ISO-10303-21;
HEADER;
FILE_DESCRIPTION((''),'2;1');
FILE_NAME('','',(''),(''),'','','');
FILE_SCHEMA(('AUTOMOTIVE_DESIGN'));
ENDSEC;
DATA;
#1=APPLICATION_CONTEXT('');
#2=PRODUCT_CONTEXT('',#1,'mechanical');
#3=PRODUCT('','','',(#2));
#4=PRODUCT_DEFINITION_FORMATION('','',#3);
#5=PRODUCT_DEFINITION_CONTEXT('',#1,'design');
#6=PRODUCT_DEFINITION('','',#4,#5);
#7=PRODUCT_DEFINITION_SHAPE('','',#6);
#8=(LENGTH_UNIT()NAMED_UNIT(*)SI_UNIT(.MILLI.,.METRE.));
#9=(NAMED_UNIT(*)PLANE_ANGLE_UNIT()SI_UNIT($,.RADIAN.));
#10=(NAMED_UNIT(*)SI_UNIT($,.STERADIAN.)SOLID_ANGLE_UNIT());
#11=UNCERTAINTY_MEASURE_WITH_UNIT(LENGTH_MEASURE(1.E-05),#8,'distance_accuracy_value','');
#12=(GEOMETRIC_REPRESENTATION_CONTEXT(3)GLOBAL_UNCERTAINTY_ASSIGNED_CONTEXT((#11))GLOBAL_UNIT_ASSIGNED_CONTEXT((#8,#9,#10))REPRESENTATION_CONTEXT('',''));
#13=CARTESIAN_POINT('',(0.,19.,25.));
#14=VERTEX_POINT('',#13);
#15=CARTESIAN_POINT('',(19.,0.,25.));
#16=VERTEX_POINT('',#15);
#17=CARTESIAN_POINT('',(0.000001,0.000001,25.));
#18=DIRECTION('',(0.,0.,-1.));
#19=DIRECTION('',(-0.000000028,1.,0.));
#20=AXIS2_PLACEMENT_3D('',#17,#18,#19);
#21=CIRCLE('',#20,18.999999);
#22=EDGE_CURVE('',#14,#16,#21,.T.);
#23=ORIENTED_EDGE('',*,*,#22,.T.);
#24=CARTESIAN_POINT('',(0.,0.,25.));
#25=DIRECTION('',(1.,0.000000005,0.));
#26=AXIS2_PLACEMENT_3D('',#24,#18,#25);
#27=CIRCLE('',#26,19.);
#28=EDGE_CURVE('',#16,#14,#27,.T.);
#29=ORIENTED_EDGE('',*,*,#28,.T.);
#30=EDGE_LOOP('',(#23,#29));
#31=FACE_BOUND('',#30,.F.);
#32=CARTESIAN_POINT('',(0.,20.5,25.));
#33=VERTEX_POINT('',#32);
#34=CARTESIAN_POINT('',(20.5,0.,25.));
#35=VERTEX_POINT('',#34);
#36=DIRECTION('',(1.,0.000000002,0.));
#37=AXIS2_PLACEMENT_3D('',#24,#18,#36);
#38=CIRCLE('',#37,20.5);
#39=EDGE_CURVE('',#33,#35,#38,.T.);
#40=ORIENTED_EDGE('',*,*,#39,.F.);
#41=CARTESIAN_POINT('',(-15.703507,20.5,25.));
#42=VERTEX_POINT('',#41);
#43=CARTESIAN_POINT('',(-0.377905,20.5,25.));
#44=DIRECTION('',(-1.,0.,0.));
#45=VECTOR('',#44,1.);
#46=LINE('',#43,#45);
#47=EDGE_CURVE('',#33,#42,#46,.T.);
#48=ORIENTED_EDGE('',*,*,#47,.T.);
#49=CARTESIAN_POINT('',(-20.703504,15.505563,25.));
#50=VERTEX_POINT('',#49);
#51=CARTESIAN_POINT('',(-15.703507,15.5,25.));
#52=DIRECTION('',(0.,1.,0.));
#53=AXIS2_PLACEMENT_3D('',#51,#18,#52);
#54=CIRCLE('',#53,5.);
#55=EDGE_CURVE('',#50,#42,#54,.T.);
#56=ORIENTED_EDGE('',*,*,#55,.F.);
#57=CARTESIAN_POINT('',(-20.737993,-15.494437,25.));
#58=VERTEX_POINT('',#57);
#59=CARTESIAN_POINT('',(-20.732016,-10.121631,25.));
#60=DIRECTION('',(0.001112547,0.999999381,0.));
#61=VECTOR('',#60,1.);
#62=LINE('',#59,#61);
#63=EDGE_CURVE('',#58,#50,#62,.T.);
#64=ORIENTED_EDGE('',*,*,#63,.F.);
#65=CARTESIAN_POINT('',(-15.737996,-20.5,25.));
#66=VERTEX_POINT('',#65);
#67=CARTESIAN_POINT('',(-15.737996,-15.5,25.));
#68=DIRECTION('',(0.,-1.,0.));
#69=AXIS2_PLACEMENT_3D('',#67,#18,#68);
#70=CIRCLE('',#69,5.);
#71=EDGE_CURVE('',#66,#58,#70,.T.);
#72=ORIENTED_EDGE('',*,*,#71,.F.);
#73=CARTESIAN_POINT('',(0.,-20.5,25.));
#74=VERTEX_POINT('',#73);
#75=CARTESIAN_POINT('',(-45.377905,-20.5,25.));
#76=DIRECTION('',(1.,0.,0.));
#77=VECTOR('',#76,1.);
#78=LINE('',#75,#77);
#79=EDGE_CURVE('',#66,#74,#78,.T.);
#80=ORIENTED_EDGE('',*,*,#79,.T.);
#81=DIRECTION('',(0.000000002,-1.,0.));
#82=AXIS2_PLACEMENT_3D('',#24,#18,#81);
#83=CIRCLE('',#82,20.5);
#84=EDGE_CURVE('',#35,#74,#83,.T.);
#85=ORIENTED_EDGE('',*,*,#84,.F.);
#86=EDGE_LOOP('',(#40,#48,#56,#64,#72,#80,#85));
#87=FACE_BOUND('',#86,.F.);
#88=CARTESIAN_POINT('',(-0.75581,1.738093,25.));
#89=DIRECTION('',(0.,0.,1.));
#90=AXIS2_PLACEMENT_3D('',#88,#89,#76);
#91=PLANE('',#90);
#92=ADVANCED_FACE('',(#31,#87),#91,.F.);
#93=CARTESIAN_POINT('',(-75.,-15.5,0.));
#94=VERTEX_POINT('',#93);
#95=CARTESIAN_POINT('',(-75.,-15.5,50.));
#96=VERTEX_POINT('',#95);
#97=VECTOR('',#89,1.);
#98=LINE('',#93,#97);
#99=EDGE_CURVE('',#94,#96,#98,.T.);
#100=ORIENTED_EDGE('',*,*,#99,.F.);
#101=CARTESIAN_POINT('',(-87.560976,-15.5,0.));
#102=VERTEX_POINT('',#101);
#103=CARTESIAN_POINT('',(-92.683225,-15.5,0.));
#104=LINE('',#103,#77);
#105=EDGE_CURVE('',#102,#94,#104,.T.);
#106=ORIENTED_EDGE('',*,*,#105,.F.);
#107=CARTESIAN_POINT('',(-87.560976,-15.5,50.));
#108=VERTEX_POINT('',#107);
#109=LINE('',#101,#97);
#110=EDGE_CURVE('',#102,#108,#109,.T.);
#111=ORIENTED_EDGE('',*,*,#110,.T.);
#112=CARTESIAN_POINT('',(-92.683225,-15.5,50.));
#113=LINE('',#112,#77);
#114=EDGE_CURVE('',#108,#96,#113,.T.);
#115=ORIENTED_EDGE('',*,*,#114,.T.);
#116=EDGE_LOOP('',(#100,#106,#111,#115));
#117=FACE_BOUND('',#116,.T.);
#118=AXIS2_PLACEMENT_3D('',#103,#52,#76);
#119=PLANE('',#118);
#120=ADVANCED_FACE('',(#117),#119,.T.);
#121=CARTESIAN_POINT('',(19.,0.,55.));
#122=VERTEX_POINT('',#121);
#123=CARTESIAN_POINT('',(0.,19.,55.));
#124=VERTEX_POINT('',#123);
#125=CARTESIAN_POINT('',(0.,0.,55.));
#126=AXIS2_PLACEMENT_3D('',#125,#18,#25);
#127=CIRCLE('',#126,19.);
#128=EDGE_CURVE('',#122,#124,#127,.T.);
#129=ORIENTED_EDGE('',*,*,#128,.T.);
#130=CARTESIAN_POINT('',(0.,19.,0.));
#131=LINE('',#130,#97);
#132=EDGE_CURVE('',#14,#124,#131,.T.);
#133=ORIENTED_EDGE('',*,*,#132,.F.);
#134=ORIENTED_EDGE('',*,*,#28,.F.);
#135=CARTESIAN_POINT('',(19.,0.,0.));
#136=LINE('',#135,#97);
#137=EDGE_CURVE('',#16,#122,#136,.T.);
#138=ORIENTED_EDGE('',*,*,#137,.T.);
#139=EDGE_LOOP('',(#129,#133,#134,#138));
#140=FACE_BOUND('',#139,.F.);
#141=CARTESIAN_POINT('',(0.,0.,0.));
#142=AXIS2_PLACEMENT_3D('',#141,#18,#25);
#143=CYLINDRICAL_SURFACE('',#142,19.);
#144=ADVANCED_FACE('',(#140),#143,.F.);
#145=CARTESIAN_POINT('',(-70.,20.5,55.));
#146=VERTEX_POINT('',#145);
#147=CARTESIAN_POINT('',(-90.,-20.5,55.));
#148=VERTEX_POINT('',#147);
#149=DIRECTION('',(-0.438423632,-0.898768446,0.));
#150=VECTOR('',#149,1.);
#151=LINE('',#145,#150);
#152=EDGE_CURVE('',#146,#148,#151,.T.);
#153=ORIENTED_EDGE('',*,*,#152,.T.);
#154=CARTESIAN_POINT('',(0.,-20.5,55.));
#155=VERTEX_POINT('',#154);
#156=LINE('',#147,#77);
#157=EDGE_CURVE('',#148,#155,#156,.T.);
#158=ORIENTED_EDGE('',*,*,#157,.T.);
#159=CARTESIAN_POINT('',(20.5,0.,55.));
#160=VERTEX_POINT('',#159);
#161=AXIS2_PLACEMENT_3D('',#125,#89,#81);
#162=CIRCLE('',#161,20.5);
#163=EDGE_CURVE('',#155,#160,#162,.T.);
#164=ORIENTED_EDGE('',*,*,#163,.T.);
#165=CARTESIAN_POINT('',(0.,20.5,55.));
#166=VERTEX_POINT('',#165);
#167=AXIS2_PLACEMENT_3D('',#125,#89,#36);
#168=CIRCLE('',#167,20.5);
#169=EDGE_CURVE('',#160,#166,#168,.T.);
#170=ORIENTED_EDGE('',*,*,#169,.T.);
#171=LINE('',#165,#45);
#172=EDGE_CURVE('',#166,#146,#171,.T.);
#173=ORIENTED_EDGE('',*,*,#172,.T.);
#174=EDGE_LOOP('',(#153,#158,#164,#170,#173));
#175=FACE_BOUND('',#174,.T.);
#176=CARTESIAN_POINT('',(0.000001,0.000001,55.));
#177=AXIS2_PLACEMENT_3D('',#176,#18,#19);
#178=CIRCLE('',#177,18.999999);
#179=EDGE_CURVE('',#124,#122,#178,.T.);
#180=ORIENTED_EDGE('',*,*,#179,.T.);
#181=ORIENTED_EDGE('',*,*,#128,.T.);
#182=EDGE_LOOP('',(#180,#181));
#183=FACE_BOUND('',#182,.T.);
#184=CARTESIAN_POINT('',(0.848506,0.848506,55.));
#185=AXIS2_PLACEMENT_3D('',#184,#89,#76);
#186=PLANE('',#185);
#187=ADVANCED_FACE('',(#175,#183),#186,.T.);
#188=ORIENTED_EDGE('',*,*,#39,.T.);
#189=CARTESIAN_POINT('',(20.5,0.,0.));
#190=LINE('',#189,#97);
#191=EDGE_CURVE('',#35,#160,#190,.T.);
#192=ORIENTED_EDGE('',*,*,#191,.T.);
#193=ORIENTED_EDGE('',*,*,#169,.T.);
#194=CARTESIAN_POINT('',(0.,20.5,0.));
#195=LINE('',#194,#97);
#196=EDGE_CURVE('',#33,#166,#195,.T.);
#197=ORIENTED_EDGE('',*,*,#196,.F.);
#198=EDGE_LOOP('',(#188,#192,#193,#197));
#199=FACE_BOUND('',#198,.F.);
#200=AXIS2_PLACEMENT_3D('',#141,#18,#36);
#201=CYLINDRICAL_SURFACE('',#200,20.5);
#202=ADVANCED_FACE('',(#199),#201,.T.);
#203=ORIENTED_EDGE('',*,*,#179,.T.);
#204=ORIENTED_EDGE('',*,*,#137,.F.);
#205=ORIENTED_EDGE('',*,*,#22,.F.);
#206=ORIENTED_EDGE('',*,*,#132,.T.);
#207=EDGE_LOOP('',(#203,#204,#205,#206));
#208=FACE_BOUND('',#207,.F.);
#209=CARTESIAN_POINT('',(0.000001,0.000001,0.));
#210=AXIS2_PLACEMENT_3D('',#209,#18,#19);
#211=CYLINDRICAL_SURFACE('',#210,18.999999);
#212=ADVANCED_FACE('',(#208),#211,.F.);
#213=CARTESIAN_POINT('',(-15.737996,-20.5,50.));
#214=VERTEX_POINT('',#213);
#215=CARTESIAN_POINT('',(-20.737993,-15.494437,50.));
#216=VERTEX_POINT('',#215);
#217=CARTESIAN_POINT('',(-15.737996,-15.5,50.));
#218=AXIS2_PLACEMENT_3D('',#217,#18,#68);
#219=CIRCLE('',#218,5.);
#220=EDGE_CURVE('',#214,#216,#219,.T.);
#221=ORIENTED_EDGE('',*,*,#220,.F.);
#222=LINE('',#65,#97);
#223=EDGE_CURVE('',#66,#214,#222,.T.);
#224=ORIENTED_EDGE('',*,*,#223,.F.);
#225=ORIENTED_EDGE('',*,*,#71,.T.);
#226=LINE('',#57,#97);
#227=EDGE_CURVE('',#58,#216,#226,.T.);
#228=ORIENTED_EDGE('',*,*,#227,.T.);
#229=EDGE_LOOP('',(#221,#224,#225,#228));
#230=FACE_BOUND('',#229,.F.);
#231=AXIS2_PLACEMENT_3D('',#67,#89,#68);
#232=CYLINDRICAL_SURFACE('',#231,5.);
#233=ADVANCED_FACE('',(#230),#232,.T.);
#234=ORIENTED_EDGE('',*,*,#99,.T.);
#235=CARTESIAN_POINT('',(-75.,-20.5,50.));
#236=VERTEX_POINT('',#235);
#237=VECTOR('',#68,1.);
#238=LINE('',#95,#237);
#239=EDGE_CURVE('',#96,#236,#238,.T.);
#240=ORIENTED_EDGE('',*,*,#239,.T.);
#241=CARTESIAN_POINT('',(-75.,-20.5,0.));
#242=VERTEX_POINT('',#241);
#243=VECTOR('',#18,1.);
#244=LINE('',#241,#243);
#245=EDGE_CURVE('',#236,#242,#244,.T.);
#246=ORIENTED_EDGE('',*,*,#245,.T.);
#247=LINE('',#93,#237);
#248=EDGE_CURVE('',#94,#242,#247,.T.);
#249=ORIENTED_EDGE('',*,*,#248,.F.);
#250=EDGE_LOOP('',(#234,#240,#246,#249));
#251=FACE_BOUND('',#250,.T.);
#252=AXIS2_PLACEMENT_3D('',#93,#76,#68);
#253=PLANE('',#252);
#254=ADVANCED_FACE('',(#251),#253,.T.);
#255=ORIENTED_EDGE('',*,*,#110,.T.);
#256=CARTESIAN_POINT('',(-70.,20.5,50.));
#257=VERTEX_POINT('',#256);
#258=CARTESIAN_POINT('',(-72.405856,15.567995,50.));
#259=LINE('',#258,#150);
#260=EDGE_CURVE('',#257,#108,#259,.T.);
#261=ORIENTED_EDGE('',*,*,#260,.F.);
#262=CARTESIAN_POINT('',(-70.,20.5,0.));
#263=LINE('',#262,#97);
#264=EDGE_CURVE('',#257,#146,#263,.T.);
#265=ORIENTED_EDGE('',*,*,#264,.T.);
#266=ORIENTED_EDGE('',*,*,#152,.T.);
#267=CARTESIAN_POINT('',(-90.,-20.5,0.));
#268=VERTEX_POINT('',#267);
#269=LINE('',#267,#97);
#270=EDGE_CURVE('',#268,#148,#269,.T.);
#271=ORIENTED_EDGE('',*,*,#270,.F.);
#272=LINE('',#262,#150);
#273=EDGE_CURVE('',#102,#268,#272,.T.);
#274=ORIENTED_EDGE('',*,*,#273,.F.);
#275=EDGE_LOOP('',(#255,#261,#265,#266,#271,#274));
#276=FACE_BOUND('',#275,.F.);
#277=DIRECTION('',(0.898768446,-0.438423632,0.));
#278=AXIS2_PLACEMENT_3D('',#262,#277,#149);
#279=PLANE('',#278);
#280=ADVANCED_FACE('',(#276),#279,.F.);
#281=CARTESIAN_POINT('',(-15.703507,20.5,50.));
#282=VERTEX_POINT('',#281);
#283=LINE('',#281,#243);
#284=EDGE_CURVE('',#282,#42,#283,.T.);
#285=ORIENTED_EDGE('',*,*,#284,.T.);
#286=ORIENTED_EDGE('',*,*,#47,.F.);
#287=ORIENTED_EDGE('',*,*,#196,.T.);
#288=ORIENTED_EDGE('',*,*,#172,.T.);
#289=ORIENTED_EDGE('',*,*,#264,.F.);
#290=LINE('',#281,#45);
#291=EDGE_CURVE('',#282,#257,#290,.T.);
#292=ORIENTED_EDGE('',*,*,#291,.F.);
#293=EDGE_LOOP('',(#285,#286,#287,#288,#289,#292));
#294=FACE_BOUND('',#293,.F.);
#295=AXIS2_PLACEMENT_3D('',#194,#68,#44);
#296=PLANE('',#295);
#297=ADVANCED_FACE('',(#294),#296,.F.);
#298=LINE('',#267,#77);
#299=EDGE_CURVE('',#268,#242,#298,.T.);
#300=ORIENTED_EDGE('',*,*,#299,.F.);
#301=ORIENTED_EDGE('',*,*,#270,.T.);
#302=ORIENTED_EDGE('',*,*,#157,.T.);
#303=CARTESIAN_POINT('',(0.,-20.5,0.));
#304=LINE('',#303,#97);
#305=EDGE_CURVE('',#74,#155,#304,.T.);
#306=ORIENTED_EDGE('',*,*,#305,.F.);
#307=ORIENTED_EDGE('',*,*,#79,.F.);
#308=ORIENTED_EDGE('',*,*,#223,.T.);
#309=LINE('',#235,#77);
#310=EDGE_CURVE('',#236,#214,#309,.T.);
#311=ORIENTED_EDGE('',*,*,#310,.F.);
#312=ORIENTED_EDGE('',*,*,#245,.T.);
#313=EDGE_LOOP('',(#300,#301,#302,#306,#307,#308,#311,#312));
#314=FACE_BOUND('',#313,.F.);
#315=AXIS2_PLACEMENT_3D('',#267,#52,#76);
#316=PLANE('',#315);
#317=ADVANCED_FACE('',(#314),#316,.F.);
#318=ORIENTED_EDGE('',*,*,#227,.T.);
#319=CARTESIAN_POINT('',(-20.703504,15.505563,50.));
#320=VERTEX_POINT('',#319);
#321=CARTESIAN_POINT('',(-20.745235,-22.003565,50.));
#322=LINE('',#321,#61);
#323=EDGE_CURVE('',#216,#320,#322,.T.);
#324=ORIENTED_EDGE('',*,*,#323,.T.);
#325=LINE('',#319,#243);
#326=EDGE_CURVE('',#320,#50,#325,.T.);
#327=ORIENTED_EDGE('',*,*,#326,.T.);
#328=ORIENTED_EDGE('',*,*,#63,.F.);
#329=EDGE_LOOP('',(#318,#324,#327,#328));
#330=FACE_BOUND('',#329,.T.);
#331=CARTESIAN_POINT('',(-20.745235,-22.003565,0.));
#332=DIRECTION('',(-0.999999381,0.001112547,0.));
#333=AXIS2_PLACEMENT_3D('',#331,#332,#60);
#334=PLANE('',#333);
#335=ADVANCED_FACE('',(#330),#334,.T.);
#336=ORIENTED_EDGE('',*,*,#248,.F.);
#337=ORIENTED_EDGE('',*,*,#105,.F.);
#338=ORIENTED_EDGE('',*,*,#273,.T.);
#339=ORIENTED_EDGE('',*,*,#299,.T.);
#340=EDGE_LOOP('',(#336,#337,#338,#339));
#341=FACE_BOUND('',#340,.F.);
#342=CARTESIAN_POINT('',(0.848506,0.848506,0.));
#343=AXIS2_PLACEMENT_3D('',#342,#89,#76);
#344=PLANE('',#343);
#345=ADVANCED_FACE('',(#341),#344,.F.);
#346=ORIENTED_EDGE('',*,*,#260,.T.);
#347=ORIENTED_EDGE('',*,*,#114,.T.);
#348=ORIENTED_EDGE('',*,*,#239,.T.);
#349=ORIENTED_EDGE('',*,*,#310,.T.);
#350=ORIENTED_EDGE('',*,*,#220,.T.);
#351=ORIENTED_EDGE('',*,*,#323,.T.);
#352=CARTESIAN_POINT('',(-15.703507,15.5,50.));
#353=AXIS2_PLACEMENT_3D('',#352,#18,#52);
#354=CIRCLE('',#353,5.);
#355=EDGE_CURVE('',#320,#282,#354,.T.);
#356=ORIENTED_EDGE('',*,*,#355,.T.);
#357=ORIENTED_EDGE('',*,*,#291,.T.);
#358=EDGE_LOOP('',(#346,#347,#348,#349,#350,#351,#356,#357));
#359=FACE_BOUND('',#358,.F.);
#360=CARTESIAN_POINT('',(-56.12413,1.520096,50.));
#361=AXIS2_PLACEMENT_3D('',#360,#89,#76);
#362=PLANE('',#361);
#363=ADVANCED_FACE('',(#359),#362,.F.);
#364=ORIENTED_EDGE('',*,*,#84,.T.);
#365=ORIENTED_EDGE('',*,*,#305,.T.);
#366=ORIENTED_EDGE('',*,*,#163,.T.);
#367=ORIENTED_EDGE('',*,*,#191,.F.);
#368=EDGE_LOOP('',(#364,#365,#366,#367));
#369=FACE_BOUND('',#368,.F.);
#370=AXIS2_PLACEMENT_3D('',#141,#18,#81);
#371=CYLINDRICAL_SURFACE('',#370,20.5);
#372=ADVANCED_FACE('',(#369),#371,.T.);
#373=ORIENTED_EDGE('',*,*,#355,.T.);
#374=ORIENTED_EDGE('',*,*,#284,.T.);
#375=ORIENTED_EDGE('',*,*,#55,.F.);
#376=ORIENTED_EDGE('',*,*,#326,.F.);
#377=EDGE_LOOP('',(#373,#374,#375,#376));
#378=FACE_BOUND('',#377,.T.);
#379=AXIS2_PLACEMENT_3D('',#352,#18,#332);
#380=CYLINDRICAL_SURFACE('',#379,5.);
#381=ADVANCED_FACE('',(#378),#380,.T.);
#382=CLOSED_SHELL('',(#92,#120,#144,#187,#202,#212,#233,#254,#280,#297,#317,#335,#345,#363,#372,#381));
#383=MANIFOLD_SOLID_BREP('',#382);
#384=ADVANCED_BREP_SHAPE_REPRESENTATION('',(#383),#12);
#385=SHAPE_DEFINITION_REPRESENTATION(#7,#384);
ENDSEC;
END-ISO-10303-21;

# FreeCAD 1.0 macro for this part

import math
import FreeCAD as App
import Part
import Sketcher
from FreeCAD import Vector
Q = App.Units.Quantity


def edges_at(feature, points):
    """Names of the edges that pass closest to the given points."""
    edges = feature.Shape.Edges
    near = lambda p: min(range(len(edges)), key=lambda i: edges[i].distToShape(Part.Vertex(*p))[0])
    return sorted({f"Edge{near(p) + 1}" for p in points})

doc = App.newDocument("Part")
body = doc.addObject("PartDesign::Body", "Body")

# Sketch on XY plane
sketch1 = doc.addObject("Sketcher::SketchObject", "Sketch")
body.addObject(sketch1)
sketch1.AttachmentSupport = (doc.XY_Plane, [""])
sketch1.MapMode = "FlatFace"
sketch1.addGeometry(Part.ArcOfCircle(Part.Circle(Vector(0, 0, 0), Vector(0, 0, 1), 20.5), math.radians(-90), math.radians(0)), False)
sketch1.addGeometry(Part.ArcOfCircle(Part.Circle(Vector(0, 0, 0), Vector(0, 0, 1), 20.5), math.radians(0), math.radians(90)), False)
sketch1.addGeometry(Part.LineSegment(Vector(0, 20.5, 0), Vector(-70, 20.5, 0)), False)
sketch1.addGeometry(Part.LineSegment(Vector(-70, 20.5, 0), Vector(-90, -20.5, 0)), False)
sketch1.addGeometry(Part.LineSegment(Vector(-90, -20.5, 0), Vector(0, -20.5, 0)), False)
sketch1.addGeometry(Part.ArcOfCircle(Part.Circle(Vector(0.000001, 0.000001, 0), Vector(0, 0, 1), 18.999999), math.radians(-0.000002), math.radians(90.000002)), False)
sketch1.addGeometry(Part.ArcOfCircle(Part.Circle(Vector(0, 0, 0), Vector(0, 0, 1), 19), math.radians(90), math.radians(360)), False)
sketch1.addConstraint(Sketcher.Constraint("Tangent", 0, 2, 1, 1))
sketch1.addConstraint(Sketcher.Constraint("Tangent", 1, 2, 2, 1))
sketch1.addConstraint(Sketcher.Constraint("Coincident", 2, 2, 3, 1))
sketch1.addConstraint(Sketcher.Constraint("Coincident", 3, 2, 4, 1))
sketch1.addConstraint(Sketcher.Constraint("Tangent", 4, 2, 0, 1))
sketch1.addConstraint(Sketcher.Constraint("Tangent", 5, 1, 6, 2))
sketch1.addConstraint(Sketcher.Constraint("Coincident", 6, 1, 5, 2))
sketch1.addConstraint(Sketcher.Constraint("Horizontal", 2))
sketch1.addConstraint(Sketcher.Constraint("Horizontal", 4))
sketch1.addConstraint(Sketcher.Constraint("Coincident", 0, 3, -1, 1))
sketch1.addConstraint(Sketcher.Constraint("Coincident", 5, 3, -1, 1))
sketch1.addConstraint(Sketcher.Constraint("Equal", 0, 1))
sketch1.addConstraint(Sketcher.Constraint("PointOnObject", 0, 2, -1))
sketch1.addConstraint(Sketcher.Constraint("PointOnObject", 5, 1, -1))
sketch1.addConstraint(Sketcher.Constraint("PointOnObject", 6, 1, -2))
sketch1.addConstraint(Sketcher.Constraint("Radius", 5, Q("18.999999 mm")))
sketch1.addConstraint(Sketcher.Constraint("Radius", 0, Q("20.5 mm")))
sketch1.addConstraint(Sketcher.Constraint("DistanceX", 2, 2, 2, 1, Q("70 mm")))
sketch1.addConstraint(Sketcher.Constraint("DistanceX", 4, 1, 4, 2, Q("90 mm")))
pad1 = doc.addObject("PartDesign::Pad", "Pad")
body.addObject(pad1)
pad1.Profile = sketch1
pad1.Length = 55

# Sketch on XY plane
sketch2 = doc.addObject("Sketcher::SketchObject", "Sketch001")
body.addObject(sketch2)
sketch2.AttachmentSupport = (doc.XY_Plane, [""])
sketch2.MapMode = "FlatFace"
sketch2.addGeometry(Part.LineSegment(Vector(-20.693906, 24.132871, 0), Vector(-92.302133, 24.132871, 0)), False)
sketch2.addGeometry(Part.LineSegment(Vector(-92.302133, 24.132871, 0), Vector(-92.683225, -15.5, 0)), False)
sketch2.addGeometry(Part.LineSegment(Vector(-92.683225, -15.5, 0), Vector(-75, -15.5, 0)), False)
sketch2.addGeometry(Part.LineSegment(Vector(-75, -15.5, 0), Vector(-75, -22.003565, 0)), False)
sketch2.addGeometry(Part.LineSegment(Vector(-75, -22.003565, 0), Vector(-20.745235, -22.003565, 0)), False)
sketch2.addGeometry(Part.LineSegment(Vector(-20.745235, -22.003565, 0), Vector(-20.693906, 24.132871, 0)), False)
sketch2.addConstraint(Sketcher.Constraint("Coincident", 0, 2, 1, 1))
sketch2.addConstraint(Sketcher.Constraint("Coincident", 1, 2, 2, 1))
sketch2.addConstraint(Sketcher.Constraint("Coincident", 2, 2, 3, 1))
sketch2.addConstraint(Sketcher.Constraint("Coincident", 3, 2, 4, 1))
sketch2.addConstraint(Sketcher.Constraint("Coincident", 4, 2, 5, 1))
sketch2.addConstraint(Sketcher.Constraint("Coincident", 5, 2, 0, 1))
sketch2.addConstraint(Sketcher.Constraint("Horizontal", 0))
sketch2.addConstraint(Sketcher.Constraint("Horizontal", 2))
sketch2.addConstraint(Sketcher.Constraint("Vertical", 3))
sketch2.addConstraint(Sketcher.Constraint("Horizontal", 4))
sketch2.addConstraint(Sketcher.Constraint("DistanceX", 2, 2, -1, 1, Q("75 mm")))
sketch2.addConstraint(Sketcher.Constraint("DistanceY", 1, 2, -1, 1, Q("15.5 mm")))
sketch2.addConstraint(Sketcher.Constraint("DistanceX", 0, 2, 0, 1, Q("71.608227 mm")))
sketch2.addConstraint(Sketcher.Constraint("DistanceX", 2, 1, 2, 2, Q("17.683225 mm")))
sketch2.addConstraint(Sketcher.Constraint("DistanceX", 4, 1, 4, 2, Q("54.254765 mm")))
sketch2.addConstraint(Sketcher.Constraint("DistanceY", 3, 2, 3, 1, Q("6.503565 mm")))
sketch2.addConstraint(Sketcher.Constraint("DistanceY", -1, 1, 0, 2, Q("24.132871 mm")))
sketch2.addConstraint(Sketcher.Constraint("DistanceX", 1, 2, 0, 2, Q("0.381092 mm")))
pocket1 = doc.addObject("PartDesign::Pocket", "Pocket")
body.addObject(pocket1)
pocket1.Profile = sketch2
pocket1.Length = 50
pocket1.Reversed = True

# Sketch on XY plane
sketch3 = doc.addObject("Sketcher::SketchObject", "Sketch002")
body.addObject(sketch3)
sketch3.AttachmentSupport = (doc.XY_Plane, [""])
sketch3.MapMode = "FlatFace"
sketch3.addGeometry(Part.LineSegment(Vector(-24.088531, 30.656409, 0), Vector(-24.088531, -27.180223, 0)), False)
sketch3.addGeometry(Part.LineSegment(Vector(-24.088531, -27.180223, 0), Vector(22.576912, -27.180223, 0)), False)
sketch3.addGeometry(Part.LineSegment(Vector(22.576912, -27.180223, 0), Vector(22.576912, 30.656409, 0)), False)
sketch3.addGeometry(Part.LineSegment(Vector(22.576912, 30.656409, 0), Vector(-24.088531, 30.656409, 0)), False)
sketch3.addConstraint(Sketcher.Constraint("Coincident", 0, 2, 1, 1))
sketch3.addConstraint(Sketcher.Constraint("Coincident", 1, 2, 2, 1))
sketch3.addConstraint(Sketcher.Constraint("Coincident", 2, 2, 3, 1))
sketch3.addConstraint(Sketcher.Constraint("Coincident", 3, 2, 0, 1))
sketch3.addConstraint(Sketcher.Constraint("Vertical", 0))
sketch3.addConstraint(Sketcher.Constraint("Horizontal", 1))
sketch3.addConstraint(Sketcher.Constraint("Vertical", 2))
sketch3.addConstraint(Sketcher.Constraint("Horizontal", 3))
sketch3.addConstraint(Sketcher.Constraint("DistanceX", 1, 1, 1, 2, Q("46.665443 mm")))
sketch3.addConstraint(Sketcher.Constraint("DistanceY", 0, 2, 0, 1, Q("57.836632 mm")))
sketch3.addConstraint(Sketcher.Constraint("DistanceX", 0, 2, -1, 1, Q("24.088531 mm")))
sketch3.addConstraint(Sketcher.Constraint("DistanceY", -1, 1, 2, 2, Q("30.656409 mm")))
pocket2 = doc.addObject("PartDesign::Pocket", "Pocket001")
body.addObject(pocket2)
pocket2.Profile = sketch3
pocket2.Length = 25
pocket2.Reversed = True
doc.recompute()

fillet = doc.addObject("PartDesign::Fillet", "Fillet")
body.addObject(fillet)
fillet.Base = (pocket2, edges_at(pocket2, [(-20.698, 20.5, 37.5), (-20.744, -20.5, 37.5)]))
fillet.Radius = 5

doc.recompute()
